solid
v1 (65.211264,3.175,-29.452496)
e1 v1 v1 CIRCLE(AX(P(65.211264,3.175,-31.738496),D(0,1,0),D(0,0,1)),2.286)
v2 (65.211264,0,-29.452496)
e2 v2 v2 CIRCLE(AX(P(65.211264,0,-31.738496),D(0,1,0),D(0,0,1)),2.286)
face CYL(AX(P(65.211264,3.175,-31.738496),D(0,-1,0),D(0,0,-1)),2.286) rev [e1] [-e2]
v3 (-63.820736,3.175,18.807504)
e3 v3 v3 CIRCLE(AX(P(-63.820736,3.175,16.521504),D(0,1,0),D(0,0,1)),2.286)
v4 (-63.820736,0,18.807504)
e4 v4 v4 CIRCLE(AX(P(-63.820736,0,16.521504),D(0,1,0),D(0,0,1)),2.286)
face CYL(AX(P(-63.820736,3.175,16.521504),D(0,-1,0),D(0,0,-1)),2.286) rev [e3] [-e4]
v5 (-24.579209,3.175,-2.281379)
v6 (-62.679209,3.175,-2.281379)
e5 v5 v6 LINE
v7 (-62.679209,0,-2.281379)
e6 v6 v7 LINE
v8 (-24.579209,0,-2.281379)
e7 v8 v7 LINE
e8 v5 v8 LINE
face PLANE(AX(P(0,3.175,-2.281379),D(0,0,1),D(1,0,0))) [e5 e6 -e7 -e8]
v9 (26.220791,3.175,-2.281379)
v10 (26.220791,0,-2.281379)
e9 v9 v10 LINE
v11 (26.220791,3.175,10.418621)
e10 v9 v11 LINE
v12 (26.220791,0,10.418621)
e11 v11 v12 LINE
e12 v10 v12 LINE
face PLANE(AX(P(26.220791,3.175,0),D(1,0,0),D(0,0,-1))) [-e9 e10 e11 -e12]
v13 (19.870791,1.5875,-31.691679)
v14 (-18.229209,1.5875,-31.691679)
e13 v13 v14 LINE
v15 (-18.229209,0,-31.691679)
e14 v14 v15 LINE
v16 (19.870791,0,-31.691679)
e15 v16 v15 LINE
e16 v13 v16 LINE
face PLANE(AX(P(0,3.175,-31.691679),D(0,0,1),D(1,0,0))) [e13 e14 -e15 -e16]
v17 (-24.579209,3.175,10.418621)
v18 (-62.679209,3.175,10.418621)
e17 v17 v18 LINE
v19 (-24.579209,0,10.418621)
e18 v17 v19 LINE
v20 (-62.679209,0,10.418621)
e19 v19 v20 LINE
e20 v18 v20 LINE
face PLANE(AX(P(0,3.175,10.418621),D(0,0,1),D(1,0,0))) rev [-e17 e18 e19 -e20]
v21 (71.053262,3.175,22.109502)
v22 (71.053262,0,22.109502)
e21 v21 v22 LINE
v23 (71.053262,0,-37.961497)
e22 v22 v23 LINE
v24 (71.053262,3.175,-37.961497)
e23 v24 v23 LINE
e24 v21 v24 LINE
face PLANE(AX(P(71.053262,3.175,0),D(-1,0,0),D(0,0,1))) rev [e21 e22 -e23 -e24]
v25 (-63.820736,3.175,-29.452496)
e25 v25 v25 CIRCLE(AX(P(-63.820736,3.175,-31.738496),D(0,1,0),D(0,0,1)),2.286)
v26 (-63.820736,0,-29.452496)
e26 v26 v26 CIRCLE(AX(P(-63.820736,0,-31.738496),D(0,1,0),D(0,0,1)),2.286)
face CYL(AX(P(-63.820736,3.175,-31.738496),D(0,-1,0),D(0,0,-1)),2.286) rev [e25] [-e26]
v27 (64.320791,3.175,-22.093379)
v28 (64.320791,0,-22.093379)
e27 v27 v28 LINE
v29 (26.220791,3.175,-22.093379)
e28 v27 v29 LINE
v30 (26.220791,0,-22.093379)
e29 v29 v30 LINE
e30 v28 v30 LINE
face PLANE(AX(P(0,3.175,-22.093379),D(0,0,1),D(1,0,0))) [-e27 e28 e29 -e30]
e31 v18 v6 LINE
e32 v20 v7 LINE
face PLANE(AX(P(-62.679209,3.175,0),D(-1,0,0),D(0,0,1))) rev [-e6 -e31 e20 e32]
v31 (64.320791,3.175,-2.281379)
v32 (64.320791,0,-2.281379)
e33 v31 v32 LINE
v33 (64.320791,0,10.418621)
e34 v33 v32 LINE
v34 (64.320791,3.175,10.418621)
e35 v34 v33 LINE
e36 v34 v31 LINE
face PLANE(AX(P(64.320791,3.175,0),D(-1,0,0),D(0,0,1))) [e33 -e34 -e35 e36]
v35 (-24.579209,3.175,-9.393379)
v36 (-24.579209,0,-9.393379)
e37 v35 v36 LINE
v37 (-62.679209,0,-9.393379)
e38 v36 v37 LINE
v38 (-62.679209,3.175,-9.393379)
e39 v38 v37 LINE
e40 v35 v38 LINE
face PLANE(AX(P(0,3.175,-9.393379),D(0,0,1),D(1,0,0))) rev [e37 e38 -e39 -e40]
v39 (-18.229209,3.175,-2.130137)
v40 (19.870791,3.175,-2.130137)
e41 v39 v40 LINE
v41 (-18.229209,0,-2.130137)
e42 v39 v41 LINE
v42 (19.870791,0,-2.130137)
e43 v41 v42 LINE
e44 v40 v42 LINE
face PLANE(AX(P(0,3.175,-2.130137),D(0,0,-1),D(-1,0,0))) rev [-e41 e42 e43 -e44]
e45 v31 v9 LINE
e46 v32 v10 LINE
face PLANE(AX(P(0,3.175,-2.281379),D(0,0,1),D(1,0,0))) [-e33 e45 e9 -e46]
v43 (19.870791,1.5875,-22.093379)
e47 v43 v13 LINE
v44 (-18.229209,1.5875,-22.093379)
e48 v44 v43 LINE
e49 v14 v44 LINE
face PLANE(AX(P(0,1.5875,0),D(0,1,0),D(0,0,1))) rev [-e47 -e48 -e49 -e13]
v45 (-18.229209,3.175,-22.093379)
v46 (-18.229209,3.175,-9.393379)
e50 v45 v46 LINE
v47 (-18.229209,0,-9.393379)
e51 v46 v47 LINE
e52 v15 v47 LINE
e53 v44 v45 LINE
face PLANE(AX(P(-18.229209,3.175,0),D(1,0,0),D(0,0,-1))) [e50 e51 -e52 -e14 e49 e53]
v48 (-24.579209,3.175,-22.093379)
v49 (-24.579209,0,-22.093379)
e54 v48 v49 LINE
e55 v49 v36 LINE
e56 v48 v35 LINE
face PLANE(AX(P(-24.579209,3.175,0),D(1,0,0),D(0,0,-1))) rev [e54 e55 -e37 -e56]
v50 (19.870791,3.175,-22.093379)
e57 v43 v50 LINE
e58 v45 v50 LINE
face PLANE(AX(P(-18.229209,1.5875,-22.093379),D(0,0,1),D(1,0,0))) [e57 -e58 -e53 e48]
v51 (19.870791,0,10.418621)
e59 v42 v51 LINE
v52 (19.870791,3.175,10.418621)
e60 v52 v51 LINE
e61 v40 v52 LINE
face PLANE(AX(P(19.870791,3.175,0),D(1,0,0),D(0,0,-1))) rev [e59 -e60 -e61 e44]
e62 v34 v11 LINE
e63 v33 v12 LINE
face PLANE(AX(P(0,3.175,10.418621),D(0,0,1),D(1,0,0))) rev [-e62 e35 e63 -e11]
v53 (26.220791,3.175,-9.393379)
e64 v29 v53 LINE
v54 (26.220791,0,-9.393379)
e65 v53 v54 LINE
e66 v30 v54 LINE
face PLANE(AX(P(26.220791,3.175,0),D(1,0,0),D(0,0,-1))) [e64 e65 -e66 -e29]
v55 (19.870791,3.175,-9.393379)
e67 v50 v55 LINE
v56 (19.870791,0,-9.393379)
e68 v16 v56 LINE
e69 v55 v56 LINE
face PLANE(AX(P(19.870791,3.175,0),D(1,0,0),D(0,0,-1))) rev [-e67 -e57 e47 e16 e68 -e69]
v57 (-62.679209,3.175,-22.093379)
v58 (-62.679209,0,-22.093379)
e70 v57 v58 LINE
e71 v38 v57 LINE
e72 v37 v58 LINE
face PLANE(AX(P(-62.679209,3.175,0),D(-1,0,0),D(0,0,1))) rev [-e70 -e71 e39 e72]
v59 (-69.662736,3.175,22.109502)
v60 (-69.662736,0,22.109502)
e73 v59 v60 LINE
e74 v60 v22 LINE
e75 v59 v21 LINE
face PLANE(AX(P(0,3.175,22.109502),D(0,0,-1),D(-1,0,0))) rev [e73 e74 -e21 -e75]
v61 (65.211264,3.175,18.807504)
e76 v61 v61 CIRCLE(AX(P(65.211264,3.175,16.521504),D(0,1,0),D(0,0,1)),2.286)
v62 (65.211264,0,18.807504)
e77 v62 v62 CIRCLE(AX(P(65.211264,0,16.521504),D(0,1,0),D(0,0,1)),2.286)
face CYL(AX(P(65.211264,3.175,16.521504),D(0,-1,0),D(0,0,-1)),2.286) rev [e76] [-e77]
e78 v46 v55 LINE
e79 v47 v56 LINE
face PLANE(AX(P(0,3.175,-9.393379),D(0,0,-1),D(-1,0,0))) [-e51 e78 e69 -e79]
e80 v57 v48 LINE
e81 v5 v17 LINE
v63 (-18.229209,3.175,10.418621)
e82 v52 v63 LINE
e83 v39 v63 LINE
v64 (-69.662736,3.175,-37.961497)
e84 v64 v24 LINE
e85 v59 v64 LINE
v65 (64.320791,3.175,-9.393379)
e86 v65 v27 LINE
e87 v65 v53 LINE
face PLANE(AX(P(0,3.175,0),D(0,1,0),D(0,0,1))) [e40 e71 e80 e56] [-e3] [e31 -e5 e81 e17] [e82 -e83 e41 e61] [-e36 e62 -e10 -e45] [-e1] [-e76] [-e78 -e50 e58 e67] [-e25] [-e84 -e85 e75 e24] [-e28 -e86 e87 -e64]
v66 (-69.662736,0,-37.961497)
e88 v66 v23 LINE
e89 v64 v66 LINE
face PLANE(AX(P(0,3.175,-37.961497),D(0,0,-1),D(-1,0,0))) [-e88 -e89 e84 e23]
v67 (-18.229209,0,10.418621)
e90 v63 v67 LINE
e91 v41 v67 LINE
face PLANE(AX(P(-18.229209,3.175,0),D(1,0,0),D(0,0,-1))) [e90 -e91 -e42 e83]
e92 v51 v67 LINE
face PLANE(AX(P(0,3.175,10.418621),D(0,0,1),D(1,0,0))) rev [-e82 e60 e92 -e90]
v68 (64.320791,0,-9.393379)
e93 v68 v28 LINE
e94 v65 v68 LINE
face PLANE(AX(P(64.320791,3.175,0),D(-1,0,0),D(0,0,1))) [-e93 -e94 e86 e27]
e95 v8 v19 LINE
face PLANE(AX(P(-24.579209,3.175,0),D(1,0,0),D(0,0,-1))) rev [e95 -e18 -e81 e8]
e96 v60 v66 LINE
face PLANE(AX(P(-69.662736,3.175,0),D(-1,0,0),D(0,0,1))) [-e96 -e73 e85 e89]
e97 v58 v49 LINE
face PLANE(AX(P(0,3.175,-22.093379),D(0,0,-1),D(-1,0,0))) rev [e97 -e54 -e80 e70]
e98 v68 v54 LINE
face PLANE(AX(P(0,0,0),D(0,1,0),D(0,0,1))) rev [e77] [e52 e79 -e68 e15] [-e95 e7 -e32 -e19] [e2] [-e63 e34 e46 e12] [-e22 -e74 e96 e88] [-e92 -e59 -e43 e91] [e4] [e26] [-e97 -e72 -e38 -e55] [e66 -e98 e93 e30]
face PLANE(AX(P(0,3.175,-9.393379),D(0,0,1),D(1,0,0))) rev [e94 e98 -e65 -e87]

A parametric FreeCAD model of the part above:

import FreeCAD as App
import Part
import Sketcher
from FreeCAD import Vector
Q = App.Units.Quantity

doc = App.newDocument("Part")
body = doc.addObject("PartDesign::Body", "Body")

# Sketch on XZ plane
sketch1 = doc.addObject("Sketcher::SketchObject", "Sketch")
body.addObject(sketch1)
sketch1.AttachmentSupport = (doc.XZ_Plane, [""])
sketch1.MapMode = "FlatFace"
sketch1.addGeometry(Part.LineSegment(Vector(-69.662736, -37.961497, 0), Vector(-69.662736, 22.109502, 0)), False)
sketch1.addGeometry(Part.LineSegment(Vector(-69.662736, 22.109502, 0), Vector(71.053262, 22.109502, 0)), False)
sketch1.addGeometry(Part.LineSegment(Vector(71.053262, 22.109502, 0), Vector(71.053262, -37.961497, 0)), False)
sketch1.addGeometry(Part.LineSegment(Vector(71.053262, -37.961497, 0), Vector(-69.662736, -37.961497, 0)), False)
sketch1.addGeometry(Part.Circle(Vector(-63.820736, 16.521504, 0), Vector(0, 0, 1), 2.286), False)
sketch1.addGeometry(Part.LineSegment(Vector(-24.579209, 10.418621, 0), Vector(-62.679209, 10.418621, 0)), False)
sketch1.addGeometry(Part.LineSegment(Vector(-62.679209, 10.418621, 0), Vector(-62.679209, -2.281379, 0)), False)
sketch1.addGeometry(Part.LineSegment(Vector(-62.679209, -2.281379, 0), Vector(-24.579209, -2.281379, 0)), False)
sketch1.addGeometry(Part.LineSegment(Vector(-24.579209, -2.281379, 0), Vector(-24.579209, 10.418621, 0)), False)
sketch1.addGeometry(Part.Circle(Vector(65.211264, 16.521504, 0), Vector(0, 0, 1), 2.286), False)
sketch1.addGeometry(Part.LineSegment(Vector(19.870791, 10.418621, 0), Vector(-18.229209, 10.418621, 0)), False)
sketch1.addGeometry(Part.LineSegment(Vector(-18.229209, 10.418621, 0), Vector(-18.229209, -2.130137, 0)), False)
sketch1.addGeometry(Part.LineSegment(Vector(-18.229209, -2.130137, 0), Vector(19.870791, -2.130137, 0)), False)
sketch1.addGeometry(Part.LineSegment(Vector(19.870791, -2.130137, 0), Vector(19.870791, 10.418621, 0)), False)
sketch1.addGeometry(Part.LineSegment(Vector(64.320791, 10.418621, 0), Vector(26.220791, 10.418621, 0)), False)
sketch1.addGeometry(Part.LineSegment(Vector(26.220791, 10.418621, 0), Vector(26.220791, -2.281379, 0)), False)
sketch1.addGeometry(Part.LineSegment(Vector(26.220791, -2.281379, 0), Vector(64.320791, -2.281379, 0)), False)
sketch1.addGeometry(Part.LineSegment(Vector(64.320791, -2.281379, 0), Vector(64.320791, 10.418621, 0)), False)
sketch1.addGeometry(Part.LineSegment(Vector(-24.579209, -9.393379, 0), Vector(-62.679209, -9.393379, 0)), False)
sketch1.addGeometry(Part.LineSegment(Vector(-62.679209, -9.393379, 0), Vector(-62.679209, -22.093379, 0)), False)
sketch1.addGeometry(Part.LineSegment(Vector(-62.679209, -22.093379, 0), Vector(-24.579209, -22.093379, 0)), False)
sketch1.addGeometry(Part.LineSegment(Vector(-24.579209, -22.093379, 0), Vector(-24.579209, -9.393379, 0)), False)
sketch1.addGeometry(Part.Circle(Vector(-63.820736, -31.738496, 0), Vector(0, 0, 1), 2.286), False)
sketch1.addGeometry(Part.LineSegment(Vector(19.870791, -9.393379, 0), Vector(-18.229209, -9.393379, 0)), False)
sketch1.addGeometry(Part.LineSegment(Vector(-18.229209, -9.393379, 0), Vector(-18.229209, -31.691679, 0)), False)
sketch1.addGeometry(Part.LineSegment(Vector(-18.229209, -31.691679, 0), Vector(19.870791, -31.691679, 0)), False)
sketch1.addGeometry(Part.LineSegment(Vector(19.870791, -31.691679, 0), Vector(19.870791, -9.393379, 0)), False)
sketch1.addGeometry(Part.LineSegment(Vector(64.320791, -9.393379, 0), Vector(26.220791, -9.393379, 0)), False)
sketch1.addGeometry(Part.LineSegment(Vector(26.220791, -9.393379, 0), Vector(26.220791, -22.093379, 0)), False)
sketch1.addGeometry(Part.LineSegment(Vector(26.220791, -22.093379, 0), Vector(64.320791, -22.093379, 0)), False)
sketch1.addGeometry(Part.LineSegment(Vector(64.320791, -22.093379, 0), Vector(64.320791, -9.393379, 0)), False)
sketch1.addGeometry(Part.Circle(Vector(65.211264, -31.738496, 0), Vector(0, 0, 1), 2.286), False)
sketch1.addConstraint(Sketcher.Constraint("Coincident", 0, 2, 1, 1))
sketch1.addConstraint(Sketcher.Constraint("Coincident", 1, 2, 2, 1))
sketch1.addConstraint(Sketcher.Constraint("Coincident", 2, 2, 3, 1))
sketch1.addConstraint(Sketcher.Constraint("Coincident", 3, 2, 0, 1))
sketch1.addConstraint(Sketcher.Constraint("Coincident", 5, 2, 6, 1))
sketch1.addConstraint(Sketcher.Constraint("Coincident", 6, 2, 7, 1))
sketch1.addConstraint(Sketcher.Constraint("Coincident", 7, 2, 8, 1))
sketch1.addConstraint(Sketcher.Constraint("Coincident", 8, 2, 5, 1))
sketch1.addConstraint(Sketcher.Constraint("Coincident", 10, 2, 11, 1))
sketch1.addConstraint(Sketcher.Constraint("Coincident", 11, 2, 12, 1))
sketch1.addConstraint(Sketcher.Constraint("Coincident", 12, 2, 13, 1))
sketch1.addConstraint(Sketcher.Constraint("Coincident", 13, 2, 10, 1))
sketch1.addConstraint(Sketcher.Constraint("Coincident", 14, 2, 15, 1))
sketch1.addConstraint(Sketcher.Constraint("Coincident", 15, 2, 16, 1))
sketch1.addConstraint(Sketcher.Constraint("Coincident", 16, 2, 17, 1))
sketch1.addConstraint(Sketcher.Constraint("Coincident", 17, 2, 14, 1))
sketch1.addConstraint(Sketcher.Constraint("Coincident", 18, 2, 19, 1))
sketch1.addConstraint(Sketcher.Constraint("Coincident", 19, 2, 20, 1))
sketch1.addConstraint(Sketcher.Constraint("Coincident", 20, 2, 21, 1))
sketch1.addConstraint(Sketcher.Constraint("Coincident", 21, 2, 18, 1))
sketch1.addConstraint(Sketcher.Constraint("Coincident", 23, 2, 24, 1))
sketch1.addConstraint(Sketcher.Constraint("Coincident", 24, 2, 25, 1))
sketch1.addConstraint(Sketcher.Constraint("Coincident", 25, 2, 26, 1))
sketch1.addConstraint(Sketcher.Constraint("Coincident", 26, 2, 23, 1))
sketch1.addConstraint(Sketcher.Constraint("Coincident", 27, 2, 28, 1))
sketch1.addConstraint(Sketcher.Constraint("Coincident", 28, 2, 29, 1))
sketch1.addConstraint(Sketcher.Constraint("Coincident", 29, 2, 30, 1))
sketch1.addConstraint(Sketcher.Constraint("Coincident", 30, 2, 27, 1))
sketch1.addConstraint(Sketcher.Constraint("Vertical", 0))
sketch1.addConstraint(Sketcher.Constraint("Horizontal", 1))
sketch1.addConstraint(Sketcher.Constraint("Vertical", 2))
sketch1.addConstraint(Sketcher.Constraint("Horizontal", 3))
sketch1.addConstraint(Sketcher.Constraint("Horizontal", 5))
sketch1.addConstraint(Sketcher.Constraint("Vertical", 6))
sketch1.addConstraint(Sketcher.Constraint("Horizontal", 7))
sketch1.addConstraint(Sketcher.Constraint("Vertical", 8))
sketch1.addConstraint(Sketcher.Constraint("Horizontal", 10))
sketch1.addConstraint(Sketcher.Constraint("Vertical", 11))
sketch1.addConstraint(Sketcher.Constraint("Horizontal", 12))
sketch1.addConstraint(Sketcher.Constraint("Vertical", 13))
sketch1.addConstraint(Sketcher.Constraint("Horizontal", 14))
sketch1.addConstraint(Sketcher.Constraint("Vertical", 15))
sketch1.addConstraint(Sketcher.Constraint("Horizontal", 16))
sketch1.addConstraint(Sketcher.Constraint("Vertical", 17))
sketch1.addConstraint(Sketcher.Constraint("Horizontal", 18))
sketch1.addConstraint(Sketcher.Constraint("Vertical", 19))
sketch1.addConstraint(Sketcher.Constraint("Horizontal", 20))
sketch1.addConstraint(Sketcher.Constraint("Vertical", 21))
sketch1.addConstraint(Sketcher.Constraint("Horizontal", 23))
sketch1.addConstraint(Sketcher.Constraint("Vertical", 24))
sketch1.addConstraint(Sketcher.Constraint("Horizontal", 25))
sketch1.addConstraint(Sketcher.Constraint("Vertical", 26))
sketch1.addConstraint(Sketcher.Constraint("Horizontal", 27))
sketch1.addConstraint(Sketcher.Constraint("Vertical", 28))
sketch1.addConstraint(Sketcher.Constraint("Horizontal", 29))
sketch1.addConstraint(Sketcher.Constraint("Vertical", 30))
sketch1.addConstraint(Sketcher.Constraint("Equal", 4, 9))
sketch1.addConstraint(Sketcher.Constraint("Equal", 9, 22))
sketch1.addConstraint(Sketcher.Constraint("Equal", 22, 31))
sketch1.addConstraint(Sketcher.Constraint("Horizontal", 4, 3, 9, 3))
sketch1.addConstraint(Sketcher.Constraint("Horizontal", 22, 3, 31, 3))
sketch1.addConstraint(Sketcher.Constraint("Horizontal", 8, 2, 10, 2))
sketch1.addConstraint(Sketcher.Constraint("Horizontal", 13, 2, 14, 2))
sketch1.addConstraint(Sketcher.Constraint("Horizontal", 7, 2, 15, 2))
sketch1.addConstraint(Sketcher.Constraint("Horizontal", 21, 2, 23, 2))
sketch1.addConstraint(Sketcher.Constraint("Horizontal", 26, 2, 27, 2))
sketch1.addConstraint(Sketcher.Constraint("Horizontal", 20, 2, 28, 2))
sketch1.addConstraint(Sketcher.Constraint("Vertical", 4, 3, 22, 3))
sketch1.addConstraint(Sketcher.Constraint("Vertical", 9, 3, 31, 3))
sketch1.addConstraint(Sketcher.Constraint("Vertical", 6, 2, 18, 2))
sketch1.addConstraint(Sketcher.Constraint("Vertical", 8, 2, 20, 2))
sketch1.addConstraint(Sketcher.Constraint("Vertical", 11, 2, 23, 2))
sketch1.addConstraint(Sketcher.Constraint("Vertical", 13, 2, 25, 2))
sketch1.addConstraint(Sketcher.Constraint("Vertical", 15, 2, 27, 2))
sketch1.addConstraint(Sketcher.Constraint("Vertical", 17, 2, 29, 2))
sketch1.addConstraint(Sketcher.Constraint("Equal", 7, 10))
sketch1.addConstraint(Sketcher.Constraint("Equal", 12, 14))
sketch1.addConstraint(Sketcher.Constraint("Equal", 17, 19))
sketch1.addConstraint(Sketcher.Constraint("Diameter", 4, Q("0.18 in")))
sketch1.addConstraint(Sketcher.Constraint("DistanceX", 5, 2, 5, 1, Q("1.5 in")))
sketch1.addConstraint(Sketcher.Constraint("DistanceY", 6, 2, 6, 1, Q("0.5 in")))
sketch1.addConstraint(Sketcher.Constraint("DistanceX", 1, 1, 1, 2, Q("5.5399999 in")))
sketch1.addConstraint(Sketcher.Constraint("DistanceY", 22, 3, 4, 3, Q("1.9 in")))
sketch1.addConstraint(Sketcher.Constraint("DistanceY", 0, 1, 0, 2, Q("2.365 in")))
sketch1.addConstraint(Sketcher.Constraint("DistanceX", 4, 3, 9, 3, Q("5.08 in")))
sketch1.addConstraint(Sketcher.Constraint("DistanceX", 0, 2, 4, 3, Q("0.23 in")))
sketch1.addConstraint(Sketcher.Constraint("DistanceY", 4, 3, 0, 2, Q("0.2199999 in")))
sketch1.addConstraint(Sketcher.Constraint("DistanceX", 8, 2, 10, 2, Q("0.25 in")))
sketch1.addConstraint(Sketcher.Constraint("DistanceX", 13, 2, 14, 2, Q("0.25 in")))
sketch1.addConstraint(Sketcher.Constraint("DistanceY", 18, 2, 6, 2, Q("0.28 in")))
sketch1.addConstraint(Sketcher.Constraint("DistanceY", 24, 2, 24, 1, 22.2983))
sketch1.addConstraint(Sketcher.Constraint("DistanceY", 11, 2, 11, 1, 12.548758))
sketch1.addConstraint(Sketcher.Constraint("DistanceX", -1, 1, 1, 2, 71.053262))
sketch1.addConstraint(Sketcher.Constraint("DistanceX", 5, 2, -1, 1, 62.679209))
sketch1.addConstraint(Sketcher.Constraint("DistanceY", -1, 1, 5, 2, 10.418621))
sketch1.addConstraint(Sketcher.Constraint("DistanceY", 5, 2, 0, 2, 11.690881))
pad1 = doc.addObject("PartDesign::Pad", "Pad")
body.addObject(pad1)
pad1.Profile = sketch1
pad1.Length = Q("0.125 in")
pad1.Reversed = True

# Sketch on XZ plane
sketch2 = doc.addObject("Sketcher::SketchObject", "Sketch001")
body.addObject(sketch2)
sketch2.AttachmentSupport = (doc.XZ_Plane, [""])
sketch2.MapMode = "FlatFace"
sketch2.AttachmentOffset = App.Placement(Vector(0, 0, -0.125 * 25.4), App.Rotation())
sketch2.addGeometry(Part.LineSegment(Vector(-18.229209, -31.691679, 0), Vector(-18.229209, -22.093379, 0)), False)
sketch2.addGeometry(Part.LineSegment(Vector(-18.229209, -22.093379, 0), Vector(19.870791, -22.093379, 0)), False)
sketch2.addGeometry(Part.LineSegment(Vector(19.870791, -22.093379, 0), Vector(19.870791, -31.691679, 0)), False)
sketch2.addGeometry(Part.LineSegment(Vector(19.870791, -31.691679, 0), Vector(-18.229209, -31.691679, 0)), False)
sketch2.addConstraint(Sketcher.Constraint("Coincident", 0, 2, 1, 1))
sketch2.addConstraint(Sketcher.Constraint("Coincident", 1, 2, 2, 1))
sketch2.addConstraint(Sketcher.Constraint("Coincident", 2, 2, 3, 1))
sketch2.addConstraint(Sketcher.Constraint("Coincident", 3, 2, 0, 1))
sketch2.addConstraint(Sketcher.Constraint("Vertical", 0))
sketch2.addConstraint(Sketcher.Constraint("Horizontal", 1))
sketch2.addConstraint(Sketcher.Constraint("Vertical", 2))
sketch2.addConstraint(Sketcher.Constraint("Horizontal", 3))
sketch2.addConstraint(Sketcher.Constraint("DistanceX", 1, 1, 1, 2, Q("1.5 in")))
sketch2.addConstraint(Sketcher.Constraint("DistanceY", 0, 1, 0, 2, 9.5983))
sketch2.addConstraint(Sketcher.Constraint("DistanceX", 0, 2, -1, 1, 18.229209))
sketch2.addConstraint(Sketcher.Constraint("DistanceY", 0, 2, -1, 1, 22.093379))
pad2 = doc.addObject("PartDesign::Pad", "Pad001")
body.addObject(pad2)
pad2.Profile = sketch2
pad2.Length = Q("0.0625 in")

doc.recompute()
